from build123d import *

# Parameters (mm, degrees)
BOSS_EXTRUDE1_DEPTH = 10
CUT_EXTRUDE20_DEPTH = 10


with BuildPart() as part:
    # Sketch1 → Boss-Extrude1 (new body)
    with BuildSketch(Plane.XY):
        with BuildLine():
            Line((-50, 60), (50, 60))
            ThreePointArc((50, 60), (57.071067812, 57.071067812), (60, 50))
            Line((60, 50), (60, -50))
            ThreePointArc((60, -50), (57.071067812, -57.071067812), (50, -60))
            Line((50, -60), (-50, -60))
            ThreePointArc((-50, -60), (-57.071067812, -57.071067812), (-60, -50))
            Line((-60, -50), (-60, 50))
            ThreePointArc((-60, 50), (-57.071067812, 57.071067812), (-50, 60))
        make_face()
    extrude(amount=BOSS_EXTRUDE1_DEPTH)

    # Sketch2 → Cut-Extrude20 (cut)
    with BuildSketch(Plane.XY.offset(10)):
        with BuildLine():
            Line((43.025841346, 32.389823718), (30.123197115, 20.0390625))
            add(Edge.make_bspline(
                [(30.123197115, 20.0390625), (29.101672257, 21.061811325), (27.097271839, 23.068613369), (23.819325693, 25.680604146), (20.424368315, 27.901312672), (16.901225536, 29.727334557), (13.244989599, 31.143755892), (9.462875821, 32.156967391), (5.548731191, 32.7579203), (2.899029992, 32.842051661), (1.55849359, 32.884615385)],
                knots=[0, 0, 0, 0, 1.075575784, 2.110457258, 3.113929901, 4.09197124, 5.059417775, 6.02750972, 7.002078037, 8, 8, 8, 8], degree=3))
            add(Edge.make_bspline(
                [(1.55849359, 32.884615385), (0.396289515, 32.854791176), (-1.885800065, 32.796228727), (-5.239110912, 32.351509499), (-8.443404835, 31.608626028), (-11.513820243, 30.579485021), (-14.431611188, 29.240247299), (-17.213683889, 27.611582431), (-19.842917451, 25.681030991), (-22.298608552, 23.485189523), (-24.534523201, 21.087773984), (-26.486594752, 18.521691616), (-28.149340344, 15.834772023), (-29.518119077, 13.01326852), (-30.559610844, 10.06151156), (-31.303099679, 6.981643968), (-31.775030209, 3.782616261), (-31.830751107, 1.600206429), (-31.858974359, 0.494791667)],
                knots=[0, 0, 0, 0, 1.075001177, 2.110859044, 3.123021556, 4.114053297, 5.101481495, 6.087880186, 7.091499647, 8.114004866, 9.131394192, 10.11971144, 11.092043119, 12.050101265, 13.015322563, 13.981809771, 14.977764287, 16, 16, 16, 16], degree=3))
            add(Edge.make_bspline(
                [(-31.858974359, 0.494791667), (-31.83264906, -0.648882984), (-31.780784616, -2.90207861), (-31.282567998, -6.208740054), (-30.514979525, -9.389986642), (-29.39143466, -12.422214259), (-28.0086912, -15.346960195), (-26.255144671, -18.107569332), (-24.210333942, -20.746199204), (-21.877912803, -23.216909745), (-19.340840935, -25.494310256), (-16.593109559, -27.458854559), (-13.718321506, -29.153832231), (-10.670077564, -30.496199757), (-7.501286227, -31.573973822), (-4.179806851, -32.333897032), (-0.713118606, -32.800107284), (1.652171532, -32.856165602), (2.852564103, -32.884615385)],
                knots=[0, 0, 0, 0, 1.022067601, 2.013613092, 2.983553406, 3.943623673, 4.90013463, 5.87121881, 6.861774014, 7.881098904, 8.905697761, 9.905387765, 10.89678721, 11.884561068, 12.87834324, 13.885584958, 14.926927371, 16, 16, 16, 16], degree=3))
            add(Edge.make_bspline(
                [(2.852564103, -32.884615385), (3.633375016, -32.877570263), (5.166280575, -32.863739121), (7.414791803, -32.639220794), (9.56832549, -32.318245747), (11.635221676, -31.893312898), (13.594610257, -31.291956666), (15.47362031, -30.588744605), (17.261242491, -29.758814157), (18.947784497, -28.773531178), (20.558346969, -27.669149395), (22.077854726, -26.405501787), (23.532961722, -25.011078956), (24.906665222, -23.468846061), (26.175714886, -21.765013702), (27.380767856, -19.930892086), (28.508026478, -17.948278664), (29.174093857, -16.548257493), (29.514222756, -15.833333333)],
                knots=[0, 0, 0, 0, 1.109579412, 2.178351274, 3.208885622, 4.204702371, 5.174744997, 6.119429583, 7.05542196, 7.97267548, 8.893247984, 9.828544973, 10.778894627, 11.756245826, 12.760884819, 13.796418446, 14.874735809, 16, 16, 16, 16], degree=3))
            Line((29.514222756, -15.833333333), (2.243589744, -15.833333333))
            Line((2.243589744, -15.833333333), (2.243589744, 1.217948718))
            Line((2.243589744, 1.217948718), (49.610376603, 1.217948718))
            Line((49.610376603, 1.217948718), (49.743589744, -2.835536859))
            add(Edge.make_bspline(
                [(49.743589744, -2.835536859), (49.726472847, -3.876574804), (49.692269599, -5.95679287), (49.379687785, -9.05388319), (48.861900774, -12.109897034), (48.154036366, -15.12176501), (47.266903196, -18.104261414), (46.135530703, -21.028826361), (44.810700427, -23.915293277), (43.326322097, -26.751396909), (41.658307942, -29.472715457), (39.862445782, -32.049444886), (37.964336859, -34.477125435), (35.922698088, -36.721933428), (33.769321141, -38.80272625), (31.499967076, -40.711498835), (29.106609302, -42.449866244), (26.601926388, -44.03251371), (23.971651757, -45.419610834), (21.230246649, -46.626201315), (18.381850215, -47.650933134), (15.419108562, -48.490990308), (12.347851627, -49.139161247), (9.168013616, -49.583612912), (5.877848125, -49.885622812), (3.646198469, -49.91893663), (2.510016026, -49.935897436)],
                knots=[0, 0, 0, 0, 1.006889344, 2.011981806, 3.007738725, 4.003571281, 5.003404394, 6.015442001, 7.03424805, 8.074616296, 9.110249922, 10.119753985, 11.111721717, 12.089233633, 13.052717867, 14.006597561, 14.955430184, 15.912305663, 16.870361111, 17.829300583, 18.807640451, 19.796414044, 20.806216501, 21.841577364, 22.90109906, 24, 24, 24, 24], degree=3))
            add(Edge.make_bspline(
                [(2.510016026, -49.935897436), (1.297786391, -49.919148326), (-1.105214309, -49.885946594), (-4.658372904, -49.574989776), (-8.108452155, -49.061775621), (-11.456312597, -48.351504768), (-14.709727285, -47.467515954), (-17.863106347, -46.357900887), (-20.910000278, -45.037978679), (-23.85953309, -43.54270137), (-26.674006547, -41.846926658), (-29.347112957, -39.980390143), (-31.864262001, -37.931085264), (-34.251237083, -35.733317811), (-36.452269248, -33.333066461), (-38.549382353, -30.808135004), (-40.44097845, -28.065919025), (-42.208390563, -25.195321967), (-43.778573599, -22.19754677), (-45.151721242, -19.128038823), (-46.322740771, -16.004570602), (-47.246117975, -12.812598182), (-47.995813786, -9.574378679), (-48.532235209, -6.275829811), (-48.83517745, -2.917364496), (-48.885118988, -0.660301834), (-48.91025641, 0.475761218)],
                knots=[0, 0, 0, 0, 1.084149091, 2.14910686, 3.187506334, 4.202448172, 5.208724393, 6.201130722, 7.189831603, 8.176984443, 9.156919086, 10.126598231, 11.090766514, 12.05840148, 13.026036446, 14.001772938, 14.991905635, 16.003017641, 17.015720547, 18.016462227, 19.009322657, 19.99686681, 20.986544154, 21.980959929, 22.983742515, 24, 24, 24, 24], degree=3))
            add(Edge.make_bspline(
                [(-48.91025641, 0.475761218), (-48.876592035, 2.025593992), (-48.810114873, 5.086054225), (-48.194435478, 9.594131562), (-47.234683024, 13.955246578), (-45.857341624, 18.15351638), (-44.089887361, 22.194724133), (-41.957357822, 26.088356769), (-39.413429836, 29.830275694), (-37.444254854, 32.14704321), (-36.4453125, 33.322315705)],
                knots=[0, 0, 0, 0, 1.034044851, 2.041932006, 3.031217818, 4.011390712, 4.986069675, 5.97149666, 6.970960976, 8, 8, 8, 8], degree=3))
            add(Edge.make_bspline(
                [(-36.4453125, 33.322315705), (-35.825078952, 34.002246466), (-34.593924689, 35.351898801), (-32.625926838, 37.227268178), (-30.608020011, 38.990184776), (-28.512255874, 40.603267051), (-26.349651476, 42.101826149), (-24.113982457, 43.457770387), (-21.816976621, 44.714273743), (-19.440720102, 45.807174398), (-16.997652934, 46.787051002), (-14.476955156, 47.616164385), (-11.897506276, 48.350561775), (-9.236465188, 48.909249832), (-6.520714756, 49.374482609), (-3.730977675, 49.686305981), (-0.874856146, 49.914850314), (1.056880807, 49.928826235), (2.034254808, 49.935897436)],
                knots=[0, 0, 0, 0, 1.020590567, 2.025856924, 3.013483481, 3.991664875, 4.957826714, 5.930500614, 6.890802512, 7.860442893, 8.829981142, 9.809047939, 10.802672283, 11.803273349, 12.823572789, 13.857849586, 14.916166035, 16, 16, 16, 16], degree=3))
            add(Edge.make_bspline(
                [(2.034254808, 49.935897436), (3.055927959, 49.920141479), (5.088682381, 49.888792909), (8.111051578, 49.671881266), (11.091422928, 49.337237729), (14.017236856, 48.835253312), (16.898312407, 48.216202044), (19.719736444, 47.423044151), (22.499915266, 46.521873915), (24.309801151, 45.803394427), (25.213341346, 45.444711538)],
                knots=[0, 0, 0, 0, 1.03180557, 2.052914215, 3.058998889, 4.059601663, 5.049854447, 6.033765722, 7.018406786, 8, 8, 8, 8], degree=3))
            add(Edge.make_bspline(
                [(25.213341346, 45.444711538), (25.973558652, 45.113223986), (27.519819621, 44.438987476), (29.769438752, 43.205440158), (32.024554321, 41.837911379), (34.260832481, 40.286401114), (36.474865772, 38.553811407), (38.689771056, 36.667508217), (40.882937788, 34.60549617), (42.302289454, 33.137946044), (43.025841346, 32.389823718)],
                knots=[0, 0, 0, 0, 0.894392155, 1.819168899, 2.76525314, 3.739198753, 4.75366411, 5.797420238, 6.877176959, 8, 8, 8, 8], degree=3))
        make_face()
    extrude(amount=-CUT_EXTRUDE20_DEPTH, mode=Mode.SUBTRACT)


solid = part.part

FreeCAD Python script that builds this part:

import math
import FreeCAD as App
import Part
import Sketcher
Q = App.Units.Quantity

doc = App.newDocument("Part")
params = doc.addObject("Spreadsheet::Sheet", "Params")
for row, (alias, value) in enumerate([
    ("sketch1_radius", "10 mm"),
    ("sketch1_width", "100 mm"),
    ("pad1_length", "10 mm"),
    ("pocket1_length", "10 mm"),
], start=1):
    params.set(f"A{row}", alias)
    params.set(f"B{row}", "=" + value)
    params.setAlias(f"B{row}", alias)

body = doc.addObject("PartDesign::Body", "Body")

sketch1 = body.newObject("Sketcher::SketchObject", "Sketch")
sketch1.AttachmentSupport = (doc.getObject("XY_Plane"), [""])
sketch1.MapMode = "FlatFace"
sketch1.addGeometry([
    Part.LineSegment(App.Vector(50, 60, 0), App.Vector(-50, 60, 0)),
    Part.ArcOfCircle(Part.Circle(App.Vector(-50, 50, 0), App.Vector(0, 0, 1), 10), math.radians(90), math.radians(180)),
    Part.LineSegment(App.Vector(-60, 50, 0), App.Vector(-60, -50, 0)),
    Part.ArcOfCircle(Part.Circle(App.Vector(-50, -50, 0), App.Vector(0, 0, 1), 10), math.radians(180), math.radians(270)),
    Part.LineSegment(App.Vector(-50, -60, 0), App.Vector(50, -60, 0)),
    Part.ArcOfCircle(Part.Circle(App.Vector(50, -50, 0), App.Vector(0, 0, 1), 10), math.radians(-90), math.radians(0)),
    Part.LineSegment(App.Vector(60, -50, 0), App.Vector(60, 50, 0)),
    Part.ArcOfCircle(Part.Circle(App.Vector(50, 50, 0), App.Vector(0, 0, 1), 10), math.radians(0), math.radians(90)),
], False)
sketch1.addConstraint([
    Sketcher.Constraint("Tangent", 0, 2, 1, 1),
    Sketcher.Constraint("Tangent", 1, 2, 2, 1),
    Sketcher.Constraint("Tangent", 2, 2, 3, 1),
    Sketcher.Constraint("Tangent", 3, 2, 4, 1),
    Sketcher.Constraint("Tangent", 4, 2, 5, 1),
    Sketcher.Constraint("Tangent", 5, 2, 6, 1),
    Sketcher.Constraint("Tangent", 6, 2, 7, 1),
    Sketcher.Constraint("Tangent", 7, 2, 0, 1),
    Sketcher.Constraint("Horizontal", 0),
    Sketcher.Constraint("Vertical", 2),
    Sketcher.Constraint("Horizontal", 4),
    Sketcher.Constraint("Vertical", 6),
    Sketcher.Constraint("Equal", 1, 3),
    Sketcher.Constraint("Equal", 3, 5),
    Sketcher.Constraint("Equal", 5, 7),
    Sketcher.Constraint("Symmetric", 1, 3, 5, 3, -1, 1),
    Sketcher.Constraint("Equal", 4, 2),
    Sketcher.Constraint("Radius", 1, Q("10 mm")),
    Sketcher.Constraint("DistanceX", 0, 2, 0, 1, Q("100 mm")),
])
sketch1.setExpression("Constraints[17]", "Params.sketch1_radius")
sketch1.setExpression("Constraints[18]", "Params.sketch1_width")
pad1 = body.newObject("PartDesign::Pad", "Pad")
pad1.Profile = sketch1
pad1.setExpression("Length", "Params.pad1_length")

sketch2 = body.newObject("Sketcher::SketchObject", "Sketch001")
sketch2.AttachmentSupport = (doc.getObject("XY_Plane"), [""])
sketch2.MapMode = "FlatFace"
sketch2.AttachmentOffset = App.Placement(App.Vector(0, 0, 10), App.Rotation())
sketch2.addGeometry([
    Part.LineSegment(App.Vector(30.123197, 20.039062, 0), App.Vector(43.025841, 32.389824, 0)),
    Part.BSplineCurve([App.Vector(25.213341, 45.444712, 0), App.Vector(25.973559, 45.113224, 0), App.Vector(27.51982, 44.438987, 0), App.Vector(29.769439, 43.20544, 0), App.Vector(32.024554, 41.837911, 0), App.Vector(34.260832, 40.286401, 0), App.Vector(36.474866, 38.553811, 0), App.Vector(38.689771, 36.667508, 0), App.Vector(40.882938, 34.605496, 0), App.Vector(42.302289, 33.137946, 0), App.Vector(43.025841, 32.389824, 0)], [4, 1, 1, 1, 1, 1, 1, 1, 4], [0, 0.894392155, 1.819168899, 2.76525314, 3.739198753, 4.75366411, 5.797420238, 6.877176959, 8], False, 3, [1, 1, 1, 1, 1, 1, 1, 1, 1, 1, 1], False),
    Part.BSplineCurve([App.Vector(2.034255, 49.935897, 0), App.Vector(3.055928, 49.920141, 0), App.Vector(5.088682, 49.888793, 0), App.Vector(8.111052, 49.671881, 0), App.Vector(11.091423, 49.337238, 0), App.Vector(14.017237, 48.835253, 0), App.Vector(16.898312, 48.216202, 0), App.Vector(19.719736, 47.423044, 0), App.Vector(22.499915, 46.521874, 0), App.Vector(24.309801, 45.803394, 0), App.Vector(25.213341, 45.444712, 0)], [4, 1, 1, 1, 1, 1, 1, 1, 4], [0, 1.03180557, 2.052914215, 3.058998889, 4.059601663, 5.049854447, 6.033765722, 7.018406786, 8], False, 3, [1, 1, 1, 1, 1, 1, 1, 1, 1, 1, 1], False),
    Part.BSplineCurve([App.Vector(-36.445312, 33.322316, 0), App.Vector(-35.825079, 34.002246, 0), App.Vector(-34.593925, 35.351899, 0), App.Vector(-32.625927, 37.227268, 0), App.Vector(-30.60802, 38.990185, 0), App.Vector(-28.512256, 40.603267, 0), App.Vector(-26.349651, 42.101826, 0), App.Vector(-24.113982, 43.45777, 0), App.Vector(-21.816977, 44.714274, 0), App.Vector(-19.44072, 45.807174, 0), App.Vector(-16.997653, 46.787051, 0), App.Vector(-14.476955, 47.616164, 0), App.Vector(-11.897506, 48.350562, 0), App.Vector(-9.236465, 48.90925, 0), App.Vector(-6.520715, 49.374483, 0), App.Vector(-3.730978, 49.686306, 0), App.Vector(-0.874856, 49.91485, 0), App.Vector(1.056881, 49.928826, 0), App.Vector(2.034255, 49.935897, 0)], [4, 1, 1, 1, 1, 1, 1, 1, 1, 1, 1, 1, 1, 1, 1, 1, 4], [0, 1.020590567, 2.025856924, 3.013483481, 3.991664875, 4.957826714, 5.930500614, 6.890802512, 7.860442893, 8.829981142, 9.809047939, 10.802672283, 11.803273349, 12.823572789, 13.857849586, 14.916166035, 16], False, 3, [1, 1, 1, 1, 1, 1, 1, 1, 1, 1, 1, 1, 1, 1, 1, 1, 1, 1, 1], False),
    Part.BSplineCurve([App.Vector(-48.910256, 0.475761, 0), App.Vector(-48.876592, 2.025594, 0), App.Vector(-48.810115, 5.086054, 0), App.Vector(-48.194435, 9.594132, 0), App.Vector(-47.234683, 13.955247, 0), App.Vector(-45.857342, 18.153516, 0), App.Vector(-44.089887, 22.194724, 0), App.Vector(-41.957358, 26.088357, 0), App.Vector(-39.41343, 29.830276, 0), App.Vector(-37.444255, 32.147043, 0), App.Vector(-36.445312, 33.322316, 0)], [4, 1, 1, 1, 1, 1, 1, 1, 4], [0, 1.034044851, 2.041932006, 3.031217818, 4.011390712, 4.986069675, 5.97149666, 6.970960976, 8], False, 3, [1, 1, 1, 1, 1, 1, 1, 1, 1, 1, 1], False),
    Part.BSplineCurve([App.Vector(2.510016, -49.935897, 0), App.Vector(1.297786, -49.919148, 0), App.Vector(-1.105214, -49.885947, 0), App.Vector(-4.658373, -49.57499, 0), App.Vector(-8.108452, -49.061776, 0), App.Vector(-11.456313, -48.351505, 0), App.Vector(-14.709727, -47.467516, 0), App.Vector(-17.863106, -46.357901, 0), App.Vector(-20.91, -45.037979, 0), App.Vector(-23.859533, -43.542701, 0), App.Vector(-26.674007, -41.846927, 0), App.Vector(-29.347113, -39.98039, 0), App.Vector(-31.864262, -37.931085, 0), App.Vector(-34.251237, -35.733318, 0), App.Vector(-36.452269, -33.333066, 0), App.Vector(-38.549382, -30.808135, 0), App.Vector(-40.440978, -28.065919, 0), App.Vector(-42.208391, -25.195322, 0), App.Vector(-43.778574, -22.197547, 0), App.Vector(-45.151721, -19.128039, 0), App.Vector(-46.322741, -16.004571, 0), App.Vector(-47.246118, -12.812598, 0), App.Vector(-47.995814, -9.574379, 0), App.Vector(-48.532235, -6.27583, 0), App.Vector(-48.835177, -2.917364, 0), App.Vector(-48.885119, -0.660302, 0), App.Vector(-48.910256, 0.475761, 0)], [4, 1, 1, 1, 1, 1, 1, 1, 1, 1, 1, 1, 1, 1, 1, 1, 1, 1, 1, 1, 1, 1, 1, 1, 4], [0, 1.084149091, 2.14910686, 3.187506334, 4.202448172, 5.208724393, 6.201130722, 7.189831603, 8.176984443, 9.156919086, 10.126598231, 11.090766514, 12.05840148, 13.026036446, 14.001772938, 14.991905635, 16.003017641, 17.015720547, 18.016462227, 19.009322657, 19.99686681, 20.986544154, 21.980959929, 22.983742515, 24], False, 3, [1, 1, 1, 1, 1, 1, 1, 1, 1, 1, 1, 1, 1, 1, 1, 1, 1, 1, 1, 1, 1, 1, 1, 1, 1, 1, 1], False),
    Part.BSplineCurve([App.Vector(49.74359, -2.835537, 0), App.Vector(49.726473, -3.876575, 0), App.Vector(49.69227, -5.956793, 0), App.Vector(49.379688, -9.053883, 0), App.Vector(48.861901, -12.109897, 0), App.Vector(48.154036, -15.121765, 0), App.Vector(47.266903, -18.104261, 0), App.Vector(46.135531, -21.028826, 0), App.Vector(44.8107, -23.915293, 0), App.Vector(43.326322, -26.751397, 0), App.Vector(41.658308, -29.472715, 0), App.Vector(39.862446, -32.049445, 0), App.Vector(37.964337, -34.477125, 0), App.Vector(35.922698, -36.721933, 0), App.Vector(33.769321, -38.802726, 0), App.Vector(31.499967, -40.711499, 0), App.Vector(29.106609, -42.449866, 0), App.Vector(26.601926, -44.032514, 0), App.Vector(23.971652, -45.419611, 0), App.Vector(21.230247, -46.626201, 0), App.Vector(18.38185, -47.650933, 0), App.Vector(15.419109, -48.49099, 0), App.Vector(12.347852, -49.139161, 0), App.Vector(9.168014, -49.583613, 0), App.Vector(5.877848, -49.885623, 0), App.Vector(3.646198, -49.918937, 0), App.Vector(2.510016, -49.935897, 0)], [4, 1, 1, 1, 1, 1, 1, 1, 1, 1, 1, 1, 1, 1, 1, 1, 1, 1, 1, 1, 1, 1, 1, 1, 4], [0, 1.006889344, 2.011981806, 3.007738725, 4.003571281, 5.003404394, 6.015442001, 7.03424805, 8.074616296, 9.110249922, 10.119753985, 11.111721717, 12.089233633, 13.052717867, 14.006597561, 14.955430184, 15.912305663, 16.870361111, 17.829300583, 18.807640451, 19.796414044, 20.806216501, 21.841577364, 22.90109906, 24], False, 3, [1, 1, 1, 1, 1, 1, 1, 1, 1, 1, 1, 1, 1, 1, 1, 1, 1, 1, 1, 1, 1, 1, 1, 1, 1, 1, 1], False),
    Part.LineSegment(App.Vector(49.74359, -2.835537, 0), App.Vector(49.610377, 1.217949, 0)),
    Part.LineSegment(App.Vector(49.610377, 1.217949, 0), App.Vector(2.24359, 1.217949, 0)),
    Part.LineSegment(App.Vector(2.24359, 1.217949, 0), App.Vector(2.24359, -15.833333, 0)),
    Part.LineSegment(App.Vector(2.24359, -15.833333, 0), App.Vector(29.514223, -15.833333, 0)),
    Part.BSplineCurve([App.Vector(2.852564, -32.884615, 0), App.Vector(3.633375, -32.87757, 0), App.Vector(5.166281, -32.863739, 0), App.Vector(7.414792, -32.639221, 0), App.Vector(9.568325, -32.318246, 0), App.Vector(11.635222, -31.893313, 0), App.Vector(13.59461, -31.291957, 0), App.Vector(15.47362, -30.588745, 0), App.Vector(17.261242, -29.758814, 0), App.Vector(18.947784, -28.773531, 0), App.Vector(20.558347, -27.669149, 0), App.Vector(22.077855, -26.405502, 0), App.Vector(23.532962, -25.011079, 0), App.Vector(24.906665, -23.468846, 0), App.Vector(26.175715, -21.765014, 0), App.Vector(27.380768, -19.930892, 0), App.Vector(28.508026, -17.948279, 0), App.Vector(29.174094, -16.548257, 0), App.Vector(29.514223, -15.833333, 0)], [4, 1, 1, 1, 1, 1, 1, 1, 1, 1, 1, 1, 1, 1, 1, 1, 4], [0, 1.109579412, 2.178351274, 3.208885622, 4.204702371, 5.174744997, 6.119429583, 7.05542196, 7.97267548, 8.893247984, 9.828544973, 10.778894627, 11.756245826, 12.760884819, 13.796418446, 14.874735809, 16], False, 3, [1, 1, 1, 1, 1, 1, 1, 1, 1, 1, 1, 1, 1, 1, 1, 1, 1, 1, 1], False),
    Part.BSplineCurve([App.Vector(-31.858974, 0.494792, 0), App.Vector(-31.832649, -0.648883, 0), App.Vector(-31.780785, -2.902079, 0), App.Vector(-31.282568, -6.20874, 0), App.Vector(-30.51498, -9.389987, 0), App.Vector(-29.391435, -12.422214, 0), App.Vector(-28.008691, -15.34696, 0), App.Vector(-26.255145, -18.107569, 0), App.Vector(-24.210334, -20.746199, 0), App.Vector(-21.877913, -23.21691, 0), App.Vector(-19.340841, -25.49431, 0), App.Vector(-16.59311, -27.458855, 0), App.Vector(-13.718322, -29.153832, 0), App.Vector(-10.670078, -30.4962, 0), App.Vector(-7.501286, -31.573974, 0), App.Vector(-4.179807, -32.333897, 0), App.Vector(-0.713119, -32.800107, 0), App.Vector(1.652172, -32.856166, 0), App.Vector(2.852564, -32.884615, 0)], [4, 1, 1, 1, 1, 1, 1, 1, 1, 1, 1, 1, 1, 1, 1, 1, 4], [0, 1.022067601, 2.013613092, 2.983553406, 3.943623673, 4.90013463, 5.87121881, 6.861774014, 7.881098904, 8.905697761, 9.905387765, 10.89678721, 11.884561068, 12.87834324, 13.885584958, 14.926927371, 16], False, 3, [1, 1, 1, 1, 1, 1, 1, 1, 1, 1, 1, 1, 1, 1, 1, 1, 1, 1, 1], False),
    Part.BSplineCurve([App.Vector(1.558494, 32.884615, 0), App.Vector(0.39629, 32.854791, 0), App.Vector(-1.8858, 32.796229, 0), App.Vector(-5.239111, 32.351509, 0), App.Vector(-8.443405, 31.608626, 0), App.Vector(-11.51382, 30.579485, 0), App.Vector(-14.431611, 29.240247, 0), App.Vector(-17.213684, 27.611582, 0), App.Vector(-19.842917, 25.681031, 0), App.Vector(-22.298609, 23.48519, 0), App.Vector(-24.534523, 21.087774, 0), App.Vector(-26.486595, 18.521692, 0), App.Vector(-28.14934, 15.834772, 0), App.Vector(-29.518119, 13.013269, 0), App.Vector(-30.559611, 10.061512, 0), App.Vector(-31.3031, 6.981644, 0), App.Vector(-31.77503, 3.782616, 0), App.Vector(-31.830751, 1.600206, 0), App.Vector(-31.858974, 0.494792, 0)], [4, 1, 1, 1, 1, 1, 1, 1, 1, 1, 1, 1, 1, 1, 1, 1, 4], [0, 1.075001177, 2.110859044, 3.123021556, 4.114053297, 5.101481495, 6.087880186, 7.091499647, 8.114004866, 9.131394192, 10.11971144, 11.092043119, 12.050101265, 13.015322563, 13.981809771, 14.977764287, 16], False, 3, [1, 1, 1, 1, 1, 1, 1, 1, 1, 1, 1, 1, 1, 1, 1, 1, 1, 1, 1], False),
    Part.BSplineCurve([App.Vector(30.123197, 20.039062, 0), App.Vector(29.101672, 21.061811, 0), App.Vector(27.097272, 23.068613, 0), App.Vector(23.819326, 25.680604, 0), App.Vector(20.424368, 27.901313, 0), App.Vector(16.901226, 29.727335, 0), App.Vector(13.24499, 31.143756, 0), App.Vector(9.462876, 32.156967, 0), App.Vector(5.548731, 32.75792, 0), App.Vector(2.89903, 32.842052, 0), App.Vector(1.558494, 32.884615, 0)], [4, 1, 1, 1, 1, 1, 1, 1, 4], [0, 1.075575784, 2.110457258, 3.113929901, 4.09197124, 5.059417775, 6.02750972, 7.002078037, 8], False, 3, [1, 1, 1, 1, 1, 1, 1, 1, 1, 1, 1], False),
], False)
sketch2.addConstraint([
    Sketcher.Constraint("Block", 1),
    Sketcher.Constraint("Block", 2),
    Sketcher.Constraint("Block", 3),
    Sketcher.Constraint("Block", 4),
    Sketcher.Constraint("Block", 5),
    Sketcher.Constraint("Block", 6),
    Sketcher.Constraint("Block", 11),
    Sketcher.Constraint("Block", 12),
    Sketcher.Constraint("Block", 13),
    Sketcher.Constraint("Block", 14),
    Sketcher.Constraint("Coincident", 0, 2, 1, 2),
    Sketcher.Constraint("Coincident", 6, 1, 7, 1),
    Sketcher.Constraint("Coincident", 7, 2, 8, 1),
    Sketcher.Constraint("Coincident", 8, 2, 9, 1),
    Sketcher.Constraint("Coincident", 9, 2, 10, 1),
    Sketcher.Constraint("Coincident", 10, 2, 11, 2),
    Sketcher.Constraint("Coincident", 14, 1, 0, 1),
    Sketcher.Constraint("Horizontal", 8),
    Sketcher.Constraint("Vertical", 9),
    Sketcher.Constraint("Horizontal", 10),
    Sketcher.Constraint("DistanceX", 8, 2, 8, 1, Q("47.366787 mm")),
    Sketcher.Constraint("DistanceX", 10, 1, 10, 2, Q("27.270633 mm")),
    Sketcher.Constraint("DistanceY", 9, 2, 9, 1, Q("17.051282 mm")),
])
pocket1 = body.newObject("PartDesign::Pocket", "Pocket")
pocket1.Profile = sketch2
pocket1.setExpression("Length", "Params.pocket1_length")

doc.recompute()
